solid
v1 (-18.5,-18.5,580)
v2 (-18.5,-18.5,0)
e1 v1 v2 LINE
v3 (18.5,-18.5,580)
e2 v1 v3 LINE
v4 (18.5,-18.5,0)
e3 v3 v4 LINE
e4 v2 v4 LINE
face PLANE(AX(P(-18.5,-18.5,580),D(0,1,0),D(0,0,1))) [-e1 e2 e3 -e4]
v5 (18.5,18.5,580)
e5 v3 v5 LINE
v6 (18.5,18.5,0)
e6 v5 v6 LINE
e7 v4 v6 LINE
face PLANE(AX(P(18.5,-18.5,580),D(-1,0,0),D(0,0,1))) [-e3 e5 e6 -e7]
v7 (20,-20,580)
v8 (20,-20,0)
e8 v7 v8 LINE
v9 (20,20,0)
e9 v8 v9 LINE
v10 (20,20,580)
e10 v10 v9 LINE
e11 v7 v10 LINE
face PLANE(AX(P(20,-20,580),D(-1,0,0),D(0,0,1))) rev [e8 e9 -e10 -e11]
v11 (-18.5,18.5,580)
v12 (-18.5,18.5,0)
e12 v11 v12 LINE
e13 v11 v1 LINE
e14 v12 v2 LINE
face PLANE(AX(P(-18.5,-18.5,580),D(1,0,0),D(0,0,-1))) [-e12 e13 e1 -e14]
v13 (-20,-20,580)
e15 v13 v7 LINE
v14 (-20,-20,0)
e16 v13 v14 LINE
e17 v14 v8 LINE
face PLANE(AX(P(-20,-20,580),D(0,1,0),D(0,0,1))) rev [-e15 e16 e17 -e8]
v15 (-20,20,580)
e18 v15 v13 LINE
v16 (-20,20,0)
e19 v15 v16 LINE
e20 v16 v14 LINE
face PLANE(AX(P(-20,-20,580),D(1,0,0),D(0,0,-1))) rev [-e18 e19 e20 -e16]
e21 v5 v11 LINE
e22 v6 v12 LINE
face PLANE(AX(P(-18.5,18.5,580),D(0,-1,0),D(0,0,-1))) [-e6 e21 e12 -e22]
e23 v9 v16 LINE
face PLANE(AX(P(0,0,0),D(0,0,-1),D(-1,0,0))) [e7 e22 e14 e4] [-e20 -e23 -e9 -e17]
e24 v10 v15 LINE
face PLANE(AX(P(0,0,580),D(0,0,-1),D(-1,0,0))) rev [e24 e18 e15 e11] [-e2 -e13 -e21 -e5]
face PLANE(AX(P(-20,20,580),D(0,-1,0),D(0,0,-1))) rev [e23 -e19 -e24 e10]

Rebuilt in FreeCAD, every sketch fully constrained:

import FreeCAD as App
import Part
import Sketcher
from FreeCAD import Vector


def add_polygon(sketch, points):
    """Adds a closed chain of lines whose ends are joined by coincident constraints."""
    first, n = sketch.GeometryCount, len(points)
    for a, b in zip(points, points[1:] + points[:1]):
        sketch.addGeometry(Part.LineSegment(App.Vector(*a, 0), App.Vector(*b, 0)), False)
    for i in range(n):
        sketch.addConstraint(Sketcher.Constraint("Coincident", first + i, 2, first + (i + 1) % n, 1))

doc = App.newDocument("Part")
body = doc.addObject("PartDesign::Body", "Body")

# Sketch on XY plane
sketch1 = body.newObject("Sketcher::SketchObject", "Sketch")
sketch1.AttachmentSupport = (doc.getObject("XY_Plane"), [""])
sketch1.MapMode = "FlatFace"
add_polygon(sketch1, [(-20, 20), (-20, -20), (20, -20), (20, 20)])  # lines 0-3
add_polygon(sketch1, [(18.5, -18.5), (-18.5, -18.5), (-18.5, 18.5), (18.5, 18.5)])  # lines 4-7
sketch1.addConstraint(Sketcher.Constraint("Vertical", 0))
sketch1.addConstraint(Sketcher.Constraint("Horizontal", 1))
sketch1.addConstraint(Sketcher.Constraint("Vertical", 2))
sketch1.addConstraint(Sketcher.Constraint("Horizontal", 3))
sketch1.addConstraint(Sketcher.Constraint("Horizontal", 4))
sketch1.addConstraint(Sketcher.Constraint("Vertical", 5))
sketch1.addConstraint(Sketcher.Constraint("Horizontal", 6))
sketch1.addConstraint(Sketcher.Constraint("Vertical", 7))
sketch1.addConstraint(Sketcher.Constraint("Symmetric", 0, 2, 2, 2, -1, 1))
sketch1.addConstraint(Sketcher.Constraint("Symmetric", 4, 2, 6, 2, -1, 1))
sketch1.addConstraint(Sketcher.Constraint("Equal", 3, 0))
sketch1.addConstraint(Sketcher.Constraint("Equal", 6, 5))
sketch1.addConstraint(Sketcher.Constraint("DistanceX", 1, 1, 1, 2, 40.0))
sketch1.addConstraint(Sketcher.Constraint("DistanceX", 4, 2, 4, 1, 37.0))
pad1 = body.newObject("PartDesign::Pad", "Pad")
pad1.Profile = sketch1
pad1.Length = 580

doc.recompute()
